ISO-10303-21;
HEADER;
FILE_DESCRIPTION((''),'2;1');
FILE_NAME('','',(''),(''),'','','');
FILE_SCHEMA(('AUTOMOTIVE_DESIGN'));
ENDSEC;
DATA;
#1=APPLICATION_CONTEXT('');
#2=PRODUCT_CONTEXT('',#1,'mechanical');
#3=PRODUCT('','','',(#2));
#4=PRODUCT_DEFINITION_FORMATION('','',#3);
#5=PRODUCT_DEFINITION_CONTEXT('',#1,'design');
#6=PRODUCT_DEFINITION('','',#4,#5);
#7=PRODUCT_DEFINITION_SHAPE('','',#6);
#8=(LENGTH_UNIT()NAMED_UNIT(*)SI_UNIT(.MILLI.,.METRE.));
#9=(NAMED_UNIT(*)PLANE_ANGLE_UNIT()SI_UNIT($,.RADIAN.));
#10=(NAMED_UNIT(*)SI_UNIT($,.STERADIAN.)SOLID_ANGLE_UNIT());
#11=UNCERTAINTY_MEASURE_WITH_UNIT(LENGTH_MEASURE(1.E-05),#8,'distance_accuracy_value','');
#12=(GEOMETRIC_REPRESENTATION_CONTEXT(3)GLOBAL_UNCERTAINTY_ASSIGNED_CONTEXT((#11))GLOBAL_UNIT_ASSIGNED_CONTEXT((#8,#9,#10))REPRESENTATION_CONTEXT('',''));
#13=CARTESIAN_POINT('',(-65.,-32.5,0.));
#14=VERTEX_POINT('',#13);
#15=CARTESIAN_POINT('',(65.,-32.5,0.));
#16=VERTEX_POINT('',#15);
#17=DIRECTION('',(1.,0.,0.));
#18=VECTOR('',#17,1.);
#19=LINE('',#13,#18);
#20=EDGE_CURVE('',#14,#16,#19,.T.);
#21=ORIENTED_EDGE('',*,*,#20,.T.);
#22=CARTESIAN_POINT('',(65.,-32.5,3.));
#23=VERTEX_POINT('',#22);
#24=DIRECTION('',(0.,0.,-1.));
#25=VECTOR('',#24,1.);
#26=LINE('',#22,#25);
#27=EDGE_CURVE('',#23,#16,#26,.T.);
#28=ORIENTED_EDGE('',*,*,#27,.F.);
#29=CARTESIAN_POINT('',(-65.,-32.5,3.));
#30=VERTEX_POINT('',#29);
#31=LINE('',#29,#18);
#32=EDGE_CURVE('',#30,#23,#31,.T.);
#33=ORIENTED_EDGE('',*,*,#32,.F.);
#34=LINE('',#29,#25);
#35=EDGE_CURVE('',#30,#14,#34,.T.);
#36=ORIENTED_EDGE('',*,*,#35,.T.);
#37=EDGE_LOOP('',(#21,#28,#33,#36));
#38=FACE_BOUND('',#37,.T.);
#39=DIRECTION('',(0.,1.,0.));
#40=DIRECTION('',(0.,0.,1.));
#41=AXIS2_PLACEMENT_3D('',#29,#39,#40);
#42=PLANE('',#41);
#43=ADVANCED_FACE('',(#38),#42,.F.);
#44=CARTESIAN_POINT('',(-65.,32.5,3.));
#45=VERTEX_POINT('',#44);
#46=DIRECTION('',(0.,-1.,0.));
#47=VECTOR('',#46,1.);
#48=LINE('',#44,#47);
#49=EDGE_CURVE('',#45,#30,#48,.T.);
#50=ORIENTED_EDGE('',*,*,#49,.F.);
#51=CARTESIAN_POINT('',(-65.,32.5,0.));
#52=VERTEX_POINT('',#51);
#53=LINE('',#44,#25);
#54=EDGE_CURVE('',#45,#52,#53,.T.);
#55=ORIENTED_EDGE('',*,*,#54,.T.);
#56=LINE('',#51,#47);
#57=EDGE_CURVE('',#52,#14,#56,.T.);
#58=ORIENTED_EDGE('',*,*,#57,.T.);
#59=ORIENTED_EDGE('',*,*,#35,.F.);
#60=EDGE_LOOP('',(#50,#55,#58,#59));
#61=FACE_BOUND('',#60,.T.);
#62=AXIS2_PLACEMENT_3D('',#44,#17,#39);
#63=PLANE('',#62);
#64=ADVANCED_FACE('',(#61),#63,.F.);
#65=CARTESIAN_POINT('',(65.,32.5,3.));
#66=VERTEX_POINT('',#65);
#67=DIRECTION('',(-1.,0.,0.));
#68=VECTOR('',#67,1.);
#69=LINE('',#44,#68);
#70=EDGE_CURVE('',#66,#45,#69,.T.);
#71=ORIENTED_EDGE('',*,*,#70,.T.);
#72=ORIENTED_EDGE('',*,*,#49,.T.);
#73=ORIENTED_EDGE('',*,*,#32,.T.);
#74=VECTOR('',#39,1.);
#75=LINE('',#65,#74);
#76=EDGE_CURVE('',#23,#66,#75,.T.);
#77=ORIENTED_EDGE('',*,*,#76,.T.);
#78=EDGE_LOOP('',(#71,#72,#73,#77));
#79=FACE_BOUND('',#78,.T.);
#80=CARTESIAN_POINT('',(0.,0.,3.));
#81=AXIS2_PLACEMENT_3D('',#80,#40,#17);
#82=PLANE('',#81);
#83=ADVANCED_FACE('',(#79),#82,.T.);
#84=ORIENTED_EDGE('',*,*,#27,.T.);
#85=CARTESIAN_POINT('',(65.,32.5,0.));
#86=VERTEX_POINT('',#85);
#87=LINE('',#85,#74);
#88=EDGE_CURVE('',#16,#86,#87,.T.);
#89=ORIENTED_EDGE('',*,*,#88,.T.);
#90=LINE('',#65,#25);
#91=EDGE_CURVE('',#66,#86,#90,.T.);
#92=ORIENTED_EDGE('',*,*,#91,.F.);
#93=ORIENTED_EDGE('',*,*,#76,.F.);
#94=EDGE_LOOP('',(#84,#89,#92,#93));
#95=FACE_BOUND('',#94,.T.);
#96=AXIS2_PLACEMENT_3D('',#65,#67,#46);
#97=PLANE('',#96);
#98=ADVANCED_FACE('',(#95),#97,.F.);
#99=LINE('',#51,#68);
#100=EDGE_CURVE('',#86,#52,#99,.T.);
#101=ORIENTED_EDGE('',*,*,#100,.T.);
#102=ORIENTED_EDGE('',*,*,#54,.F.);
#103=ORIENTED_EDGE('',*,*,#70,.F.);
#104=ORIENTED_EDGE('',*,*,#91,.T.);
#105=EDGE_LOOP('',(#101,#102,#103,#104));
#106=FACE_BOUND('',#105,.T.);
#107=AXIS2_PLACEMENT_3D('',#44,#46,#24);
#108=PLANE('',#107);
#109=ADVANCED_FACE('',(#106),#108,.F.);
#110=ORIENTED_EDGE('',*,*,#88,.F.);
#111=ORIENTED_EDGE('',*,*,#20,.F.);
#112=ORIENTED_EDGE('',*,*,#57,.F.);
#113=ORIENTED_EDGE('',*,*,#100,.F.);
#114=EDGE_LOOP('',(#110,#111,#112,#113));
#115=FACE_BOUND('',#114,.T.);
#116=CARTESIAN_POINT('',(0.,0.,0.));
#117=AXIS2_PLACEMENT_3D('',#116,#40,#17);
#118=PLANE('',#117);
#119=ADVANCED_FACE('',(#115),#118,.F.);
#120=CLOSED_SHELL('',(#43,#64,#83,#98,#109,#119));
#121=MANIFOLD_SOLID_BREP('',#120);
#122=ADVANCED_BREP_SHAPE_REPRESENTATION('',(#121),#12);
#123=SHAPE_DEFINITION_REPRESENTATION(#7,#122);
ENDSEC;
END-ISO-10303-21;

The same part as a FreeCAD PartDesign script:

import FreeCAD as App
import Part
import Sketcher

doc = App.newDocument("Part")
body = doc.addObject("PartDesign::Body", "Body")

sketch1 = body.newObject("Sketcher::SketchObject", "Sketch")
sketch1.AttachmentSupport = (doc.getObject("XY_Plane"), [""])
sketch1.MapMode = "FlatFace"
sketch1.addGeometry([
    Part.LineSegment(App.Vector(-65, 32, 0), App.Vector(-65, -32, 0)),
    Part.LineSegment(App.Vector(-65, -32, 0), App.Vector(65, -32, 0)),
    Part.LineSegment(App.Vector(65, -32, 0), App.Vector(65, 32, 0)),
    Part.LineSegment(App.Vector(65, 32, 0), App.Vector(-65, 32, 0)),
], False)
sketch1.addConstraint([
    Sketcher.Constraint("Coincident", 0, 2, 1, 1),
    Sketcher.Constraint("Coincident", 1, 2, 2, 1),
    Sketcher.Constraint("Coincident", 2, 2, 3, 1),
    Sketcher.Constraint("Coincident", 3, 2, 0, 1),
    Sketcher.Constraint("Vertical", 0),
    Sketcher.Constraint("Horizontal", 1),
    Sketcher.Constraint("Vertical", 2),
    Sketcher.Constraint("Horizontal", 3),
    Sketcher.Constraint("Symmetric", 0, 2, 2, 2, -1, 1),
    Sketcher.Constraint("DistanceX", 1, 1, 1, 2, 130.0),
    Sketcher.Constraint("DistanceY", 0, 2, 0, 1, 65.0),
])
pad1 = body.newObject("PartDesign::Pad", "Pad")
pad1.Profile = sketch1
pad1.Length = 3

doc.recompute()
